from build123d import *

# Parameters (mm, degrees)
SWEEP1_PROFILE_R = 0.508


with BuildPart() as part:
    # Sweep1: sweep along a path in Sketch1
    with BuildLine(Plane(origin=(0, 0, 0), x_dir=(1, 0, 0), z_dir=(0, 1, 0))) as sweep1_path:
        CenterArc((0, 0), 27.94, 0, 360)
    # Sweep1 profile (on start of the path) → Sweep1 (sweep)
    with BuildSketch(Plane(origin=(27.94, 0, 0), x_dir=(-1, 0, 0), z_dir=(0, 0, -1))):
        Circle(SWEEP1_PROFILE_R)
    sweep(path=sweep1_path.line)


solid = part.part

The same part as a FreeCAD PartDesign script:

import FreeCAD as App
import Part
import Sketcher
Q = App.Units.Quantity

doc = App.newDocument("Part")
params = doc.addObject("Spreadsheet::Sheet", "Params")
for row, (alias, value) in enumerate([
    ("sketch1_diameter", "0.04 in"),
    ("sketch2_diameter", "2.2 in"),
], start=1):
    params.set(f"A{row}", alias)
    params.set(f"B{row}", "=" + value)
    params.setAlias(f"B{row}", alias)

body = doc.addObject("PartDesign::Body", "Body")

sketch1 = body.newObject("Sketcher::SketchObject", "Sketch")
sketch1.AttachmentSupport = (doc.getObject("XY_Plane"), [""])
sketch1.MapMode = "FlatFace"
sketch1.addGeometry(Part.Circle(App.Vector(27.9, 0, 0), App.Vector(0, 0, 1), 0.5), False)
sketch1.addConstraint(Sketcher.Constraint("PointOnObject", 0, 3, -1))
sketch1.addConstraint(Sketcher.Constraint("Diameter", 0, Q("0.04 in")))
sketch1.addConstraint(Sketcher.Constraint("DistanceX", -1, 1, 0, 3, Q("1.1 in")))
sketch1.setExpression("Constraints[1]", "Params.sketch1_diameter")

sketch2 = body.newObject("Sketcher::SketchObject", "Sketch001")
sketch2.AttachmentSupport = (doc.getObject("XZ_Plane"), [""])
sketch2.MapMode = "FlatFace"
sketch2.addGeometry(Part.Circle(App.Vector(0, 0, 0), App.Vector(0, 0, 1), 28), False)
sketch2.addConstraint(Sketcher.Constraint("Coincident", 0, 3, -1, 1))
sketch2.addConstraint(Sketcher.Constraint("Diameter", 0, Q("2.2 in")))
sketch2.setExpression("Constraints[1]", "Params.sketch2_diameter")
doc.recompute()

additivepipe = body.newObject("PartDesign::AdditivePipe", "AdditivePipe")
additivepipe.Profile = sketch1
additivepipe.Spine = (sketch2, ["Edge1"])

doc.recompute()
